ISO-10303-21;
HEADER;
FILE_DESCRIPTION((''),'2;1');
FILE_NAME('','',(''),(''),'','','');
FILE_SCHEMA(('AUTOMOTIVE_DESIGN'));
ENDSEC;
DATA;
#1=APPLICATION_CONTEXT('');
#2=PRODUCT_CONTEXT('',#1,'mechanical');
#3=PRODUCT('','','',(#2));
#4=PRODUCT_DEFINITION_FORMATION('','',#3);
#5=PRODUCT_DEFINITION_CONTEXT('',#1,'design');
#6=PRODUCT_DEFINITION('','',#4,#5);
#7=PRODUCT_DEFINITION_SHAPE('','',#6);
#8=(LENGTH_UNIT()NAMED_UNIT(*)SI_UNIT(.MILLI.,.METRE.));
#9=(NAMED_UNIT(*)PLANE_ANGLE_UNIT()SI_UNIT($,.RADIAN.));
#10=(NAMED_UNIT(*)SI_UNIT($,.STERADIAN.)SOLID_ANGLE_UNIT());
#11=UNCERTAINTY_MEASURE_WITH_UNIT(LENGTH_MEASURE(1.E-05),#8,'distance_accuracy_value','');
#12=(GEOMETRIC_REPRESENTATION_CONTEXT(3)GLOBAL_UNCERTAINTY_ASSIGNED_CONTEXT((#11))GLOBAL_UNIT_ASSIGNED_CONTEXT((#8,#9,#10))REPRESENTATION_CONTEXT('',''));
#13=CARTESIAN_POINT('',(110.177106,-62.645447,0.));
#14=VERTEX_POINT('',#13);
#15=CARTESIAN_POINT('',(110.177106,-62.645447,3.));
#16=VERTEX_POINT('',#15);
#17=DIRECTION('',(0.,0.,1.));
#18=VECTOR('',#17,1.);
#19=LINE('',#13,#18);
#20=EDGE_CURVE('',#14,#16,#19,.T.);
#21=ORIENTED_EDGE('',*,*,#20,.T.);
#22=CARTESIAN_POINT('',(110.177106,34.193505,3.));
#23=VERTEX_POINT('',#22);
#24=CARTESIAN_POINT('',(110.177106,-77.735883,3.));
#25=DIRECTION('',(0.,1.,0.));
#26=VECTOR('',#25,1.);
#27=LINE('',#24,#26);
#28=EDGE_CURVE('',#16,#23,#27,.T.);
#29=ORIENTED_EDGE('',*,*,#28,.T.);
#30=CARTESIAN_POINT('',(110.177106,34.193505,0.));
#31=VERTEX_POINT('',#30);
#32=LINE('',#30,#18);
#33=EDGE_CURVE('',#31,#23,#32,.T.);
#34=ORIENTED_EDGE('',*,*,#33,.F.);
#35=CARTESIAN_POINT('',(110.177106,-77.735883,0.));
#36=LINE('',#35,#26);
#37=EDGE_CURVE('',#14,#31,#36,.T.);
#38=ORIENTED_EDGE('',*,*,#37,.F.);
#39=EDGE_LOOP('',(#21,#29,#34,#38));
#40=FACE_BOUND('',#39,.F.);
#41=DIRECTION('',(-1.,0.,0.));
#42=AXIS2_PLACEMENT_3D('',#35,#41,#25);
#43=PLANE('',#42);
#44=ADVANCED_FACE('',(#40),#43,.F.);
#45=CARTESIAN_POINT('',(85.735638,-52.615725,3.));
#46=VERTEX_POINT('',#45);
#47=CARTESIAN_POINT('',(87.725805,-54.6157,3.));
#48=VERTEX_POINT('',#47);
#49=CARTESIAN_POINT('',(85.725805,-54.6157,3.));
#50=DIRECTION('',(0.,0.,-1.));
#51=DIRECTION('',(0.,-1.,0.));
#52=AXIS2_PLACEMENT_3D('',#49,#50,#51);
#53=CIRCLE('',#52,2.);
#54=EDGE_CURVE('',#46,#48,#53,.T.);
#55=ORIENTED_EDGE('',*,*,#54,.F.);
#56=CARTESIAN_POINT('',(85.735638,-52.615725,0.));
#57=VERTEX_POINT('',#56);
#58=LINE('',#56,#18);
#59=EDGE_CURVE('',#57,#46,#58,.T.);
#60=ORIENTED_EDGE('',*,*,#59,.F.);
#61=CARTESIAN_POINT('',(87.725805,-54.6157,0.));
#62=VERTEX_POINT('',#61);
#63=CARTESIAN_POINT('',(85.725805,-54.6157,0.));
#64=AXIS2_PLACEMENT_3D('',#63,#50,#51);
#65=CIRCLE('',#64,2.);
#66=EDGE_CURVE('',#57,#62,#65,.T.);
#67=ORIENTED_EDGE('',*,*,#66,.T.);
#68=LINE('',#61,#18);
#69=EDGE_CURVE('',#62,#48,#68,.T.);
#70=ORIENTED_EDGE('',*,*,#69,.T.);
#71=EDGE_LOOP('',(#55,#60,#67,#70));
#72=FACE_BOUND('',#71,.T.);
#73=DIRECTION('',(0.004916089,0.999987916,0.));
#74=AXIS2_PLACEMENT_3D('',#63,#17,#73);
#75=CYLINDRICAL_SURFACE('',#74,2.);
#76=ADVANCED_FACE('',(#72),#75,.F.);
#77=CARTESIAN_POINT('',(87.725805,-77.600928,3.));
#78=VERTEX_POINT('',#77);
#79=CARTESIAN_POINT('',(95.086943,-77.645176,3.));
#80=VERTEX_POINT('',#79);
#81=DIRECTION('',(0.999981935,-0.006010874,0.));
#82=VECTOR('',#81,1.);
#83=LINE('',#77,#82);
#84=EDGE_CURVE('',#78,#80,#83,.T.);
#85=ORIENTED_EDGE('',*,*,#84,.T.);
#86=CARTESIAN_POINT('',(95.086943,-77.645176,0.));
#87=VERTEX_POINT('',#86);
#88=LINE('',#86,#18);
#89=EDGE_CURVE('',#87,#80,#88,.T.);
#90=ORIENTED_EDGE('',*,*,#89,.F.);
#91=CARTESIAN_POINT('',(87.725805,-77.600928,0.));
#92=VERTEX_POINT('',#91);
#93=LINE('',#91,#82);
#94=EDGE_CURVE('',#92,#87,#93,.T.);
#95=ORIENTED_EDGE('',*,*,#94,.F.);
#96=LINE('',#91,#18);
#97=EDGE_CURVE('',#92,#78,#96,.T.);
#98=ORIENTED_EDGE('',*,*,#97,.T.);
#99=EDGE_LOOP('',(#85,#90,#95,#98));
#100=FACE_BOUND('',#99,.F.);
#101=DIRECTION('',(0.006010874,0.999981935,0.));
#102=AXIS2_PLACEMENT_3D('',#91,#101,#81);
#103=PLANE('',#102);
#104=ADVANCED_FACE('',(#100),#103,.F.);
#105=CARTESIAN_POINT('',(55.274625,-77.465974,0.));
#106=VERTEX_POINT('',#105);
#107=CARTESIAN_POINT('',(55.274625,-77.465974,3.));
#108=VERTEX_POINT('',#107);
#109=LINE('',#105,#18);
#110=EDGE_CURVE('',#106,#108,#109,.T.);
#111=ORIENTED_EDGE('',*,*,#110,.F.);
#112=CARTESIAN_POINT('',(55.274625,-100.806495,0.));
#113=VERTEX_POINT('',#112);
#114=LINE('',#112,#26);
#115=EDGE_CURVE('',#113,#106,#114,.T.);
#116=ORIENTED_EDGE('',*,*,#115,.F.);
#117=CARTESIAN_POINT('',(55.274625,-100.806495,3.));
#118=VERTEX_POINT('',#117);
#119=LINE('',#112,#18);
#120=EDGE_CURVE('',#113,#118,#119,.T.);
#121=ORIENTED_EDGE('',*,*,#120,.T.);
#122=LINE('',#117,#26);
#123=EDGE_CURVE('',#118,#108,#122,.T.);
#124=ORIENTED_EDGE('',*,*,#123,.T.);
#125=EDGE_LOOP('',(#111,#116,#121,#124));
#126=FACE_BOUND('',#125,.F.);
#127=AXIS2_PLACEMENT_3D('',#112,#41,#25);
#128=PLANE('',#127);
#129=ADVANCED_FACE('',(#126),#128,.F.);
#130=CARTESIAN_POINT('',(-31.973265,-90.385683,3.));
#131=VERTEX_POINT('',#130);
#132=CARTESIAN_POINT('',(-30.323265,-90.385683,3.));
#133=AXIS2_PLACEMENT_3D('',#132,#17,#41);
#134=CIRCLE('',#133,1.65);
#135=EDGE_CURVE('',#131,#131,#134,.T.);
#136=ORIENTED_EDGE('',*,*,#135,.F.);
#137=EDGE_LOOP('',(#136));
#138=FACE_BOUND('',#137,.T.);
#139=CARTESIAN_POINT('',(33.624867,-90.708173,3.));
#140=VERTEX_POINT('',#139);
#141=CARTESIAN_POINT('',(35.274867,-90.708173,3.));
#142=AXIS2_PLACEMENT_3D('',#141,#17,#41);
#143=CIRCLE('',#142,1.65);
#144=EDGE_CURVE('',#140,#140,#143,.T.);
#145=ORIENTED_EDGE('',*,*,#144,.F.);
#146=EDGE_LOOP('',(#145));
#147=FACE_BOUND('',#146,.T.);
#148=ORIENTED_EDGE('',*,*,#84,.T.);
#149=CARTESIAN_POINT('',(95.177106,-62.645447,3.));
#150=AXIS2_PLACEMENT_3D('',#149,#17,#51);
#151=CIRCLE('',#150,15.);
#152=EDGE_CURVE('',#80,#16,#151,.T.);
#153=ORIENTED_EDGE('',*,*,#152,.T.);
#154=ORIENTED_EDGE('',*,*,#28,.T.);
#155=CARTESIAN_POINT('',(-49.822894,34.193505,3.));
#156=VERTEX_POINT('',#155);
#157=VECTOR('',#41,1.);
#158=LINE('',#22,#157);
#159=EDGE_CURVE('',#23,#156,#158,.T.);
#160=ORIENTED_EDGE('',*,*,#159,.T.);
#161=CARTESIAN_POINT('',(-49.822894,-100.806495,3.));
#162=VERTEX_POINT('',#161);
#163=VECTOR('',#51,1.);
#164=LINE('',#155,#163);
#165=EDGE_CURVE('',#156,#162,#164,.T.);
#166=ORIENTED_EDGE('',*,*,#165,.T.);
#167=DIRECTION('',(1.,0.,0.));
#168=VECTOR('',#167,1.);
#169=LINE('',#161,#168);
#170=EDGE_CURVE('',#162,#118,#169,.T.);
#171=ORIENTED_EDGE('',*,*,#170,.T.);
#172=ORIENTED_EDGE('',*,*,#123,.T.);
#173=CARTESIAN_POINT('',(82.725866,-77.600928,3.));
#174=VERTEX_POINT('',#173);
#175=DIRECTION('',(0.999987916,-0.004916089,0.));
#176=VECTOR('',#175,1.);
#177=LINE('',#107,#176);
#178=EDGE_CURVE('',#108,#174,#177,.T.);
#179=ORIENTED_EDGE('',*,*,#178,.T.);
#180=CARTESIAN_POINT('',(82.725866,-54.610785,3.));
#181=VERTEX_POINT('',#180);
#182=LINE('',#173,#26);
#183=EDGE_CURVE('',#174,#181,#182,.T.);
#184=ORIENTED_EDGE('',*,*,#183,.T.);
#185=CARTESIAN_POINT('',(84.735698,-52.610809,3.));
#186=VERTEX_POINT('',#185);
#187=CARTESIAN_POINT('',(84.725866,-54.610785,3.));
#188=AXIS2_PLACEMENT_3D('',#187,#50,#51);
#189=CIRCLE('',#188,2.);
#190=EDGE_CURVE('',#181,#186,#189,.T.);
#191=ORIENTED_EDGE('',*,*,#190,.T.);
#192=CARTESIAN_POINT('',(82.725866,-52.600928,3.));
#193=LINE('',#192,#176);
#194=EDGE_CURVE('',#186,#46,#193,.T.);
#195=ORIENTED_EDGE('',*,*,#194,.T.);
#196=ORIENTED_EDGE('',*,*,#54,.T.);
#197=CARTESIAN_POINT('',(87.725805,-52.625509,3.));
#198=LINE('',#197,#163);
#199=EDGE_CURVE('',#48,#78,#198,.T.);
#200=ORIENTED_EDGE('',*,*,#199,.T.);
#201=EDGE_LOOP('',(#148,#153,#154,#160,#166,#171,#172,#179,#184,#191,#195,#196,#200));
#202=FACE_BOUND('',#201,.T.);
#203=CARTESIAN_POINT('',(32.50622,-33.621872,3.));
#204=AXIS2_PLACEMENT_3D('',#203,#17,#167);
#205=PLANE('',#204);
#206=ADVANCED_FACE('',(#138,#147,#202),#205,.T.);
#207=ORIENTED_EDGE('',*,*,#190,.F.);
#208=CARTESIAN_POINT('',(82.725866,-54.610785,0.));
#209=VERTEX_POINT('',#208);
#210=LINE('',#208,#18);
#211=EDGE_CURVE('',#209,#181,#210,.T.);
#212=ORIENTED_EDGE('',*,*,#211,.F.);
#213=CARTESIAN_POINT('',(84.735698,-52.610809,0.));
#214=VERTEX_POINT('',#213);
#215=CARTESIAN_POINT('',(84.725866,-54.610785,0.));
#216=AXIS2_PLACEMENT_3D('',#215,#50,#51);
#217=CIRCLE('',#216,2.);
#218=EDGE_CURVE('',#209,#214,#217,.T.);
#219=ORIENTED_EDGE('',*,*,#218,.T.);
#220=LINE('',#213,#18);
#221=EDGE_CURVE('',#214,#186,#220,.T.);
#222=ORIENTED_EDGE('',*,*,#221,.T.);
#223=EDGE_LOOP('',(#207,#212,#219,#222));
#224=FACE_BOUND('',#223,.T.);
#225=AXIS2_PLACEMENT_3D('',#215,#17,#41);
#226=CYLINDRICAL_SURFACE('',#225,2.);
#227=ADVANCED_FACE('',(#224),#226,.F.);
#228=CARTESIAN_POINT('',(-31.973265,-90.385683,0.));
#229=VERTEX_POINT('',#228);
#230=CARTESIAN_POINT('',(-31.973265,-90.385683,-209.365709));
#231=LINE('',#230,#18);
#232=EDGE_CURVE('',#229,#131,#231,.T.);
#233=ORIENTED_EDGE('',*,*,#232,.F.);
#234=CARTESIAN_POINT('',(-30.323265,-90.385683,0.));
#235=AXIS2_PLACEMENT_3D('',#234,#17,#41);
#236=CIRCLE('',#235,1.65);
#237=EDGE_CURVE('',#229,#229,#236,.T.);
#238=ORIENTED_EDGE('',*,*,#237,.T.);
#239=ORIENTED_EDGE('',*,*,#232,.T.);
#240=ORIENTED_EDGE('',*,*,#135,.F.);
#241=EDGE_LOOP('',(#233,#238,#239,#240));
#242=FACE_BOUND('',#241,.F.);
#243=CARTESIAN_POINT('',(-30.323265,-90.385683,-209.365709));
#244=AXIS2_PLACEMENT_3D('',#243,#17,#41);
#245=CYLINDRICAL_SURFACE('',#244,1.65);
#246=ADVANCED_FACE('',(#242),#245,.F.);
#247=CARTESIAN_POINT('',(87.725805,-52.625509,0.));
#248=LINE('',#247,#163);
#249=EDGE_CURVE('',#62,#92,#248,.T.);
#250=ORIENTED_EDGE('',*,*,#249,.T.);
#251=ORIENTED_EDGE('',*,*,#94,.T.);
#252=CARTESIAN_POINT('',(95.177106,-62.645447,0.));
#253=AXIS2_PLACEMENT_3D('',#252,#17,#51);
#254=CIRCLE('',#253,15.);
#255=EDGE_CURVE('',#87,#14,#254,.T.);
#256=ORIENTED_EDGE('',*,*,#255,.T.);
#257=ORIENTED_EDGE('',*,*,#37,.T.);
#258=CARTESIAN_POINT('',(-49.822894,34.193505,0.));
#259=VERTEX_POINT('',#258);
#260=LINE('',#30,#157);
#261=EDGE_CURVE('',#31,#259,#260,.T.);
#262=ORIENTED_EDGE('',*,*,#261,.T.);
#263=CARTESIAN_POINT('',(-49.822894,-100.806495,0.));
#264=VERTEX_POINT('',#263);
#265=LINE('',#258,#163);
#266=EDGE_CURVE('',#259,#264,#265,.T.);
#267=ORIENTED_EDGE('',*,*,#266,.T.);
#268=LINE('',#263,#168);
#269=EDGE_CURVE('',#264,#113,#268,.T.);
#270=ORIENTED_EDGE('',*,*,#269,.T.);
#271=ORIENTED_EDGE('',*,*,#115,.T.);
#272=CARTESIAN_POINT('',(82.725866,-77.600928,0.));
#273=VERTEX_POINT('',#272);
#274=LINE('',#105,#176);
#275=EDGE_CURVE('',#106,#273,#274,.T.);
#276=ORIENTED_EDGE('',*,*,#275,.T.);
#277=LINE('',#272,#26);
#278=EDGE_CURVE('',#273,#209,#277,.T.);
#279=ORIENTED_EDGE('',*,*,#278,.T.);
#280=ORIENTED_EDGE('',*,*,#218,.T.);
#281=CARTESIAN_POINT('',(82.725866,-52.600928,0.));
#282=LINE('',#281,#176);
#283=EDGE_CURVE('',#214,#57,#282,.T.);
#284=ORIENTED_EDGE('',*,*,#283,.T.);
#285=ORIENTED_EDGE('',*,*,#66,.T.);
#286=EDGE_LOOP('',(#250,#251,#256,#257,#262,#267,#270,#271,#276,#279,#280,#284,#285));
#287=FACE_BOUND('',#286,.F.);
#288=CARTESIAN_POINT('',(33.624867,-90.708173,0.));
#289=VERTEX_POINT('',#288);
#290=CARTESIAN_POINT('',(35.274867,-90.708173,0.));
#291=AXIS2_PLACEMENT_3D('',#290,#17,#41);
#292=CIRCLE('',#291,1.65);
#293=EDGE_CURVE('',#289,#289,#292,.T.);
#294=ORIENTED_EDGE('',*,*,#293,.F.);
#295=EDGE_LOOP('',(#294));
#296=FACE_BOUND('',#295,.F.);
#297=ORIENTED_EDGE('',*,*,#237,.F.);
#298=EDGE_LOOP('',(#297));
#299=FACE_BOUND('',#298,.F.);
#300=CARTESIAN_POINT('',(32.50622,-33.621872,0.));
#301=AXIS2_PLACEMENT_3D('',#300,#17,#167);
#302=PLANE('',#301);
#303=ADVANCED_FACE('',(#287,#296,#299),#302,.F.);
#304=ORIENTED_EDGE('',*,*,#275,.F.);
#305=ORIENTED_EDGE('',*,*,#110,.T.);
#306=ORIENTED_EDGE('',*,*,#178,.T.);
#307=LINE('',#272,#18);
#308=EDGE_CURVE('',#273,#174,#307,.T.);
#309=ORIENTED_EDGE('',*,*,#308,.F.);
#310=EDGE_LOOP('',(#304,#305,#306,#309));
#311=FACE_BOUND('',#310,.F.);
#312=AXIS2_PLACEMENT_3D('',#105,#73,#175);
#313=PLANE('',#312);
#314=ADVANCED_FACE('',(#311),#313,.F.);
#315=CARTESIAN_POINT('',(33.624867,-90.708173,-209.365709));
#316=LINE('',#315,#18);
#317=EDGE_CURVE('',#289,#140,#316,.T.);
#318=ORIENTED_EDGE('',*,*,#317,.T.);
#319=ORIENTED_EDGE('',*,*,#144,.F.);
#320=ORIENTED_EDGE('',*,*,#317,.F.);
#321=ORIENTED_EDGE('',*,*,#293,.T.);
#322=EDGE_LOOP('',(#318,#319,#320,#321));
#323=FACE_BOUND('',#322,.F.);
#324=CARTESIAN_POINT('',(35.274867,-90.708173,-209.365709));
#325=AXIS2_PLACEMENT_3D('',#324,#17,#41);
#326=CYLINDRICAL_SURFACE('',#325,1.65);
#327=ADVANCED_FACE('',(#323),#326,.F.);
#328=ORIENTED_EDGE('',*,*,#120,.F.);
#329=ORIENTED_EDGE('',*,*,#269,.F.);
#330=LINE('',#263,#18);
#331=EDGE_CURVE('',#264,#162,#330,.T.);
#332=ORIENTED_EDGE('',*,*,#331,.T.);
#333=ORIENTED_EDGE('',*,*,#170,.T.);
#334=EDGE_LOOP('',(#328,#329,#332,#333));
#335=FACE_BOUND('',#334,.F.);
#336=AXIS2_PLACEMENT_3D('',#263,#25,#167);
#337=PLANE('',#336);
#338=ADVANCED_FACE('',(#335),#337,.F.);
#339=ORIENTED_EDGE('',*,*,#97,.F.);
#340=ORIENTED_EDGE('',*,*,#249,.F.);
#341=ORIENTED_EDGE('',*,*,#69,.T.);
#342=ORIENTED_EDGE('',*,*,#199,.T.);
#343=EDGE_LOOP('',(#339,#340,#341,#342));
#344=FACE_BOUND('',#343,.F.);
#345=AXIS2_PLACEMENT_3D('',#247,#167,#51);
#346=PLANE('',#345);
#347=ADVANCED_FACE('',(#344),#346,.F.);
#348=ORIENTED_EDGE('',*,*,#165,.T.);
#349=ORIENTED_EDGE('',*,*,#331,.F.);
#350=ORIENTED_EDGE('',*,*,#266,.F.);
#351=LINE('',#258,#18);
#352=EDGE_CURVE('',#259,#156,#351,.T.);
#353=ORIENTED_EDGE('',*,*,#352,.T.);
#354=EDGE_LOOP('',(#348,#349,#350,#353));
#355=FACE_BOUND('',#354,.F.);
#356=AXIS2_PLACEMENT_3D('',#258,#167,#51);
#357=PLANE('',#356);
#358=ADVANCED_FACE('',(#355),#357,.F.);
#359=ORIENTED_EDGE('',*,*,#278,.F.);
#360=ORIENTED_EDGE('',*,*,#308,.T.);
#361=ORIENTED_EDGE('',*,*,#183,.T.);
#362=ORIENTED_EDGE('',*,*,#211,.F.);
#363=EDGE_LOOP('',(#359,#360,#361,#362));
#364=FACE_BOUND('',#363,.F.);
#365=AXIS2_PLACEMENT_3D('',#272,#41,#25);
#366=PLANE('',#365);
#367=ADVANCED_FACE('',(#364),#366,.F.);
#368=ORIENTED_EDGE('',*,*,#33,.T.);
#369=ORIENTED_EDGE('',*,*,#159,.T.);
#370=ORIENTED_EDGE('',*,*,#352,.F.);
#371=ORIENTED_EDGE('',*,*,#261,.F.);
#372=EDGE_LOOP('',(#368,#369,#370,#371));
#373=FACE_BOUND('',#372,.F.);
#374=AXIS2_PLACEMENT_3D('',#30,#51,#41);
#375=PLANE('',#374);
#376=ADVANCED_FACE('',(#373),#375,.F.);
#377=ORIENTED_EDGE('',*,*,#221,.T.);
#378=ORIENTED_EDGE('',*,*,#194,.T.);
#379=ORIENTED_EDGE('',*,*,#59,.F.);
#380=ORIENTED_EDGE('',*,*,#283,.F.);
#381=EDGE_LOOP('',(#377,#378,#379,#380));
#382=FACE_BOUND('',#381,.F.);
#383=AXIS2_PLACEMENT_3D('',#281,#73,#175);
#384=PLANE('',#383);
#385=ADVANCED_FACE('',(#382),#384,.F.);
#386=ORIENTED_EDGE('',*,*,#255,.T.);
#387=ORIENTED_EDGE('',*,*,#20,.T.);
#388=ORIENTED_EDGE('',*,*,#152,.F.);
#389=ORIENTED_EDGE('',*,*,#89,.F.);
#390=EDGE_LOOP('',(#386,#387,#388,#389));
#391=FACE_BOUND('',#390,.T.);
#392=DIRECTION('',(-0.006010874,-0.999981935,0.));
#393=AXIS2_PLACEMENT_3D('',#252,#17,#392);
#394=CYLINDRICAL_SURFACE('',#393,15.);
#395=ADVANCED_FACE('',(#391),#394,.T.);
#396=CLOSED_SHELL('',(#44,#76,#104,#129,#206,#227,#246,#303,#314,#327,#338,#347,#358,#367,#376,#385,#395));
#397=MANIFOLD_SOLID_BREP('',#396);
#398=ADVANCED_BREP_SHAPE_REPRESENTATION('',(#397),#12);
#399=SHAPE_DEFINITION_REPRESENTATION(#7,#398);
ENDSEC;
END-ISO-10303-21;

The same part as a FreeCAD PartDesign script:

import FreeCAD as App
import Part
import Sketcher
from FreeCAD import Vector
Q = App.Units.Quantity


def edges_at(feature, points):
    """Names of the edges that pass closest to the given points."""
    edges = feature.Shape.Edges
    near = lambda p: min(range(len(edges)), key=lambda i: edges[i].distToShape(Part.Vertex(*p))[0])
    return sorted({f"Edge{near(p) + 1}" for p in points})

doc = App.newDocument("Part")
body = doc.addObject("PartDesign::Body", "Body")

sketch1 = body.newObject("Sketcher::SketchObject", "Sketch")
sketch1.AttachmentSupport = (doc.getObject("XY_Plane"), [""])
sketch1.MapMode = "FlatFace"
sketch1.addGeometry([
    Part.LineSegment(Vector(110, 34, 0), Vector(-50, 34, 0)),
    Part.LineSegment(Vector(-50, 34, 0), Vector(-50, -101, 0)),
    Part.LineSegment(Vector(-50, -101, 0), Vector(55, -101, 0)),
    Part.LineSegment(Vector(55, -101, 0), Vector(55, -77, 0)),
    Part.LineSegment(Vector(55, -77, 0), Vector(83, -78, 0)),
    Part.LineSegment(Vector(83, -78, 0), Vector(83, -53, 0)),
    Part.LineSegment(Vector(83, -53, 0), Vector(88, -53, 0)),
    Part.LineSegment(Vector(88, -53, 0), Vector(88, -78, 0)),
    Part.LineSegment(Vector(88, -78, 0), Vector(110, -78, 0)),
    Part.LineSegment(Vector(110, -78, 0), Vector(110, 34, 0)),
], False)
sketch1.addConstraint([
    Sketcher.Constraint("Coincident", 0, 2, 1, 1),
    Sketcher.Constraint("Coincident", 1, 2, 2, 1),
    Sketcher.Constraint("Coincident", 2, 2, 3, 1),
    Sketcher.Constraint("Coincident", 3, 2, 4, 1),
    Sketcher.Constraint("Coincident", 4, 2, 5, 1),
    Sketcher.Constraint("Coincident", 5, 2, 6, 1),
    Sketcher.Constraint("Coincident", 6, 2, 7, 1),
    Sketcher.Constraint("Coincident", 7, 2, 8, 1),
    Sketcher.Constraint("Coincident", 8, 2, 9, 1),
    Sketcher.Constraint("Coincident", 9, 2, 0, 1),
    Sketcher.Constraint("Horizontal", 0),
    Sketcher.Constraint("Vertical", 1),
    Sketcher.Constraint("Horizontal", 2),
    Sketcher.Constraint("Vertical", 3),
    Sketcher.Constraint("Vertical", 5),
    Sketcher.Constraint("Vertical", 7),
    Sketcher.Constraint("Vertical", 9),
    Sketcher.Constraint("Parallel", 4, 6),
    Sketcher.Constraint("Horizontal", 4, 2, 7, 2),
    Sketcher.Constraint("DistanceX", 0, 2, 0, 1, Q("160 mm")),
    Sketcher.Constraint("DistanceY", 1, 2, 1, 1, Q("135 mm")),
    Sketcher.Constraint("DistanceY", 5, 1, 5, 2, Q("25 mm")),
    Sketcher.Constraint("Distance", 6, Q("5 mm")),
    Sketcher.Constraint("DistanceX", 2, 1, 2, 2, Q("105.097519 mm")),
    Sketcher.Constraint("DistanceY", 3, 1, 3, 2, Q("23.340521 mm")),
    Sketcher.Constraint("DistanceY", 7, 2, 7, 1, Q("24.97542 mm")),
    Sketcher.Constraint("DistanceX", 1, 2, 6, 2, Q("137.548699 mm")),
    Sketcher.Constraint("DistanceY", 9, 1, 9, 2, Q("111.929387 mm")),
    Sketcher.Constraint("DistanceY", 4, 2, -1, 1, Q("77.600928 mm")),
    Sketcher.Constraint("DistanceX", 0, 2, -1, 1, Q("49.822894 mm")),
])
pad1 = body.newObject("PartDesign::Pad", "Pad")
pad1.Profile = sketch1
pad1.Length = 3
doc.recompute()

fillet = body.newObject("PartDesign::Fillet", "Fillet")
fillet.Base = (pad1, edges_at(pad1, [(82.726, -52.601, 1.5)]))
fillet.Radius = 2
doc.recompute()

fillet2 = body.newObject("PartDesign::Fillet", "Fillet001")
fillet2.Base = (fillet, edges_at(fillet, [(87.726, -52.626, 1.5)]))
fillet2.Radius = 2

sketch2 = body.newObject("Sketcher::SketchObject", "Sketch001")
sketch2.AttachmentSupport = (doc.getObject("XY_Plane"), [""])
sketch2.MapMode = "FlatFace"
sketch2.addGeometry([
    Part.Circle(Vector(-30.3, -90.4, 0), Vector(0, 0, 1), 1.6),
    Part.Circle(Vector(35.3, -90.7, 0), Vector(0, 0, 1), 1.6),
], False)
sketch2.addConstraint([
    Sketcher.Constraint("Equal", 0, 1),
    Sketcher.Constraint("Diameter", 0, Q("3.3 mm")),
    Sketcher.Constraint("DistanceX", 0, 3, 1, 3, Q("65.598132 mm")),
    Sketcher.Constraint("DistanceY", 1, 3, 0, 3, Q("0.32249 mm")),
    Sketcher.Constraint("DistanceX", 0, 3, -1, 1, Q("30.323265 mm")),
    Sketcher.Constraint("DistanceY", 0, 3, -1, 1, Q("90.385683 mm")),
])
doc.recompute()
hole = body.newObject("PartDesign::Hole", "Hole")
hole.Profile = sketch2
hole.ThreadType = "None"
hole.Diameter = 3.3
hole.DepthType = "ThroughAll"
hole.Reversed = True
doc.recompute()

fillet3 = body.newObject("PartDesign::Fillet", "Fillet002")
fillet3.Base = (hole, edges_at(hole, [(110.177, -77.736, 1.5)]))
fillet3.Radius = 15

doc.recompute()
